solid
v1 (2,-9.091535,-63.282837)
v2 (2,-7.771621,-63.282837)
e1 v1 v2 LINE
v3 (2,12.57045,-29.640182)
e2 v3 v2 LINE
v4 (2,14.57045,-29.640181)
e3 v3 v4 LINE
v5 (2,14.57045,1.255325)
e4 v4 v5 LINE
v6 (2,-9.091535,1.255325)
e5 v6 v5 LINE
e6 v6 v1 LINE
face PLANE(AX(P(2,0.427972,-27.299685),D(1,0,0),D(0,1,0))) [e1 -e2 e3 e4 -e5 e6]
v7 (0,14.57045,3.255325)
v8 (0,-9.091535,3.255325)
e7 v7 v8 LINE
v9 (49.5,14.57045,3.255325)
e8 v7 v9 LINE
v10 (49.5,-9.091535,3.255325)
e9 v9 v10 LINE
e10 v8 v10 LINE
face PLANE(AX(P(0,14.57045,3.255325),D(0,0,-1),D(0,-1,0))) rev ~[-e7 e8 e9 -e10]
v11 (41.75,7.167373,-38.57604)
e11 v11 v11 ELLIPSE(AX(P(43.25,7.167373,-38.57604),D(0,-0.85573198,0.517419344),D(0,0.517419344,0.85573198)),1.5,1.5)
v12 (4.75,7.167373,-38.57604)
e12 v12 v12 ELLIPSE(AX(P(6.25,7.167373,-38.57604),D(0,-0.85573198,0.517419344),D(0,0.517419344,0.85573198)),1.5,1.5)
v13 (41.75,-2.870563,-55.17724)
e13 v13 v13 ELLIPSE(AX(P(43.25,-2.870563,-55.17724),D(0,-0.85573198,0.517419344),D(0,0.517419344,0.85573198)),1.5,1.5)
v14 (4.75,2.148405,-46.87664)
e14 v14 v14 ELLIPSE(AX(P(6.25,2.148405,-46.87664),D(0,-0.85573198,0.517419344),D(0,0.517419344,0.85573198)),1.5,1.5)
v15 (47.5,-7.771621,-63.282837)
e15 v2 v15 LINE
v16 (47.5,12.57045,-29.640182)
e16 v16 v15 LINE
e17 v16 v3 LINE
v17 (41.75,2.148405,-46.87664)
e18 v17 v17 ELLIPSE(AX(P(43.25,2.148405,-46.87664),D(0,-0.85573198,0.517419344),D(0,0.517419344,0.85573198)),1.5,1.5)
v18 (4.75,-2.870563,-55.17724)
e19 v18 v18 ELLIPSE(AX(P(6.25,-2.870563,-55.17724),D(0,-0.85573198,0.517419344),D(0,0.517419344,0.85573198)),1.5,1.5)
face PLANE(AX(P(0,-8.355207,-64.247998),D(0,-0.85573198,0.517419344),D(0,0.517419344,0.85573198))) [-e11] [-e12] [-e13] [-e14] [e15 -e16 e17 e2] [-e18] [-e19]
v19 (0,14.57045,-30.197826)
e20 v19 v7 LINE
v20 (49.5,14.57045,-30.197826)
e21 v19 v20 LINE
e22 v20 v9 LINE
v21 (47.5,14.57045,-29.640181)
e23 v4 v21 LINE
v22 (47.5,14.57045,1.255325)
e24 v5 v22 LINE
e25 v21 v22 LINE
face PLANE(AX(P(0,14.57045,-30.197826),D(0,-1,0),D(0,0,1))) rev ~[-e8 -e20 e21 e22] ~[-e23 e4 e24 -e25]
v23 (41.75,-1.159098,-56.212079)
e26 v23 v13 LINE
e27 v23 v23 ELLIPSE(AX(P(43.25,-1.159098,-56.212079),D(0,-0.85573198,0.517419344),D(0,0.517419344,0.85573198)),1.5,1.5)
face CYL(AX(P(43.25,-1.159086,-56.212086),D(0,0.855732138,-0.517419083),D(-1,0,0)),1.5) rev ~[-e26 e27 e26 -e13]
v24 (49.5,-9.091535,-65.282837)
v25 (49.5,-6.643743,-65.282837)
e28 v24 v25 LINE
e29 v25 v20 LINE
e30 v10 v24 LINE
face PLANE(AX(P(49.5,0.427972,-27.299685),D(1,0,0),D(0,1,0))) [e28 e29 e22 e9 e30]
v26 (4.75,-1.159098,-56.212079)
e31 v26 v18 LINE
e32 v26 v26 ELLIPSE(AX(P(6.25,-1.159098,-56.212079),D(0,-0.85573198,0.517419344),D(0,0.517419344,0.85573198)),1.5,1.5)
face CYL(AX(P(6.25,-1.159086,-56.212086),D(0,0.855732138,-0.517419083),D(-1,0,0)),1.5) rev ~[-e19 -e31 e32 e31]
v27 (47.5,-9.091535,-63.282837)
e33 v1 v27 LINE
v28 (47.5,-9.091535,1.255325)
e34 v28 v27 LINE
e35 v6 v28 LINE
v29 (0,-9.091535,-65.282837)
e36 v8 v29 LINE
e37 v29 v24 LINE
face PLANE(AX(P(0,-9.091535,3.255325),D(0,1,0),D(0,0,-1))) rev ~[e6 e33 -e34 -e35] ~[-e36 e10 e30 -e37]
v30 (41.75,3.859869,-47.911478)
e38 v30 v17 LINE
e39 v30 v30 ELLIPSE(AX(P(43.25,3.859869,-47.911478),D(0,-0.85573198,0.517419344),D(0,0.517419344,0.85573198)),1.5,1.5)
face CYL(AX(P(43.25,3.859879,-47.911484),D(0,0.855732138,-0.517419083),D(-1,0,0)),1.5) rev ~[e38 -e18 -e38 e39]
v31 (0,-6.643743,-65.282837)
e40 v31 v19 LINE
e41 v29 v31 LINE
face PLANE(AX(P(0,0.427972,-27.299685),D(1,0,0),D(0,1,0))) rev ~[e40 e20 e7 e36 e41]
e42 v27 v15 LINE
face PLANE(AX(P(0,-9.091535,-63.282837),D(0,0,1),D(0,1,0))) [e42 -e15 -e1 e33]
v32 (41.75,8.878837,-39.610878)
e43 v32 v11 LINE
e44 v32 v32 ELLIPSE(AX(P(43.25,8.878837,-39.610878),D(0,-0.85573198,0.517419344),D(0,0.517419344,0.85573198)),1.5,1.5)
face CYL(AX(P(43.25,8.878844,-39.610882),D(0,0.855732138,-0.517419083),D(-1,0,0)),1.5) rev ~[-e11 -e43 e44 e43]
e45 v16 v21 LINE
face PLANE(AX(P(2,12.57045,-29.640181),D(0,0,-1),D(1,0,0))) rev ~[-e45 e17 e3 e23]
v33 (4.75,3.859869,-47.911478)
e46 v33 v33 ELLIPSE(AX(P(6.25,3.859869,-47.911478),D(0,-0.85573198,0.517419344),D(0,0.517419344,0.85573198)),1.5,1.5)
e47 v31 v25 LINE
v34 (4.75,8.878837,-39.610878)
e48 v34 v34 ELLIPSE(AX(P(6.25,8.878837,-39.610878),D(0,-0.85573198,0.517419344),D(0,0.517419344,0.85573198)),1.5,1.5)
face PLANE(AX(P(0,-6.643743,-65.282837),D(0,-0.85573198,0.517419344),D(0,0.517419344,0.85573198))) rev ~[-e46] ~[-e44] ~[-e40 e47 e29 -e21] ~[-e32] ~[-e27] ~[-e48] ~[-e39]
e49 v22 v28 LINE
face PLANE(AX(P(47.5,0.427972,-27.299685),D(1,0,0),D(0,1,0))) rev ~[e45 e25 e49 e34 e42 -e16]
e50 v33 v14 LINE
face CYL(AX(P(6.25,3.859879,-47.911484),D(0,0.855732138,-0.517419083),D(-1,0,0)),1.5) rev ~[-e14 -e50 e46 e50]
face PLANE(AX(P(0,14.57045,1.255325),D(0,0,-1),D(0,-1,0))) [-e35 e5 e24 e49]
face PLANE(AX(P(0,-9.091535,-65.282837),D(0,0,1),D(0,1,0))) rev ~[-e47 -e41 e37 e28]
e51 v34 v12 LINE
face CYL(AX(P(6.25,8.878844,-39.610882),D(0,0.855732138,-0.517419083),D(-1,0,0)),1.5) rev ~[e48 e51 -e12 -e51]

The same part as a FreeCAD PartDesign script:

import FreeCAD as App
import Part
import Sketcher
Q = App.Units.Quantity


def faces_at(feature, points):
    """Names of the faces that lie closest to the given points."""
    faces = feature.Shape.Faces
    near = lambda p: min(range(len(faces)), key=lambda i: faces[i].distToShape(Part.Vertex(*p))[0])
    return sorted({f"Face{near(p) + 1}" for p in points})


def add_polygon(sketch, points):
    """Adds a closed chain of lines whose ends are joined by coincident constraints."""
    first, n = sketch.GeometryCount, len(points)
    for a, b in zip(points, points[1:] + points[:1]):
        sketch.addGeometry(Part.LineSegment(App.Vector(*a, 0), App.Vector(*b, 0)), False)
    for i in range(n):
        sketch.addConstraint(Sketcher.Constraint("Coincident", first + i, 2, first + (i + 1) % n, 1))

doc = App.newDocument("Part")
body = doc.addObject("PartDesign::Body", "Body")

# Sketch on YZ plane
sketch1 = body.newObject("Sketcher::SketchObject", "Sketch")
sketch1.AttachmentSupport = (doc.getObject("YZ_Plane"), [""])
sketch1.MapMode = "FlatFace"
add_polygon(sketch1, [(14.6, 3.3), (-9.1, 3.3), (-9.1, -65.3), (-6.6, -65.3), (14.6, -30.2)])  # lines 0-4
sketch1.addConstraint(Sketcher.Constraint("Horizontal", 0))
sketch1.addConstraint(Sketcher.Constraint("Vertical", 1))
sketch1.addConstraint(Sketcher.Constraint("Horizontal", 2))
sketch1.addConstraint(Sketcher.Constraint("Vertical", 4))
sketch1.addConstraint(Sketcher.Constraint("Distance", 3, Q("41 mm")))
sketch1.addConstraint(Sketcher.Constraint("DistanceY", 1, 2, 1, 1, Q("68.538162 mm")))
sketch1.addConstraint(Sketcher.Constraint("DistanceY", 4, 1, 4, 2, Q("33.453151 mm")))
sketch1.addConstraint(Sketcher.Constraint("DistanceX", 0, 2, 0, 1, Q("23.661985 mm")))
sketch1.addConstraint(Sketcher.Constraint("DistanceX", -1, 1, 3, 2, Q("14.57045 mm")))
sketch1.addConstraint(Sketcher.Constraint("DistanceY", -1, 1, 0, 2, Q("3.255325 mm")))
pad1 = body.newObject("PartDesign::Pad", "Pad")
pad1.Profile = sketch1
pad1.Length = 49.5
doc.recompute()

thickness = body.newObject("PartDesign::Thickness", "Thickness")
thickness.Base = (pad1, faces_at(pad1, [(24.75, -9.092, -31.014)]))
thickness.Value = 2
thickness.Reversed = True
thickness.Join = "Arc"

# Sketch on XZ plane
sketch2 = body.newObject("Sketcher::SketchObject", "Sketch001")
sketch2.AttachmentSupport = (doc.getObject("XZ_Plane"), [""])
sketch2.MapMode = "FlatFace"
sketch2.AttachmentOffset = App.Placement(App.Vector(0, 0, -12.57045), App.Rotation())
add_polygon(sketch2, [(2, 1), (2, -30), (48, -30), (48, 1)])  # lines 0-3
sketch2.addConstraint(Sketcher.Constraint("Vertical", 0))
sketch2.addConstraint(Sketcher.Constraint("Horizontal", 1))
sketch2.addConstraint(Sketcher.Constraint("Vertical", 2))
sketch2.addConstraint(Sketcher.Constraint("Horizontal", 3))
sketch2.addConstraint(Sketcher.Constraint("DistanceX", 1, 1, 1, 2, Q("45.5 mm")))
sketch2.addConstraint(Sketcher.Constraint("DistanceX", -1, 1, 0, 2, Q("2 mm")))
sketch2.addConstraint(Sketcher.Constraint("DistanceY", 0, 2, 0, 1, Q("30.895506 mm")))
sketch2.addConstraint(Sketcher.Constraint("DistanceY", 0, 2, -1, 1, Q("29.640181 mm")))
pocket1 = body.newObject("PartDesign::Pocket", "Pocket")
pocket1.Profile = sketch2
pocket1.Length = 25

# Sketch on an angled plane
sketch3 = body.newObject("Sketcher::SketchObject", "Sketch002")
sketch3.Placement = App.Placement(App.Vector(0, 24.040368, -14.536037), App.Rotation(App.Vector(-1, 0, 0), App.Vector(0, 0.517419083, 0.855732138), App.Vector(0, 0.855732138, -0.517419083), "ZXY"))
sketch3.addGeometry(Part.Circle(App.Vector(-43.2, -29.3, 0), App.Vector(0, 0, 1), 1.5), False)
sketch3.addGeometry(Part.Circle(App.Vector(-43.2, -39, 0), App.Vector(0, 0, 1), 1.5), False)
sketch3.addGeometry(Part.Circle(App.Vector(-43.2, -48.7, 0), App.Vector(0, 0, 1), 1.5), False)
sketch3.addGeometry(Part.Circle(App.Vector(-6.2, -29.3, 0), App.Vector(0, 0, 1), 1.5), False)
sketch3.addGeometry(Part.Circle(App.Vector(-6.2, -39, 0), App.Vector(0, 0, 1), 1.5), False)
sketch3.addGeometry(Part.Circle(App.Vector(-6.2, -48.7, 0), App.Vector(0, 0, 1), 1.5), False)
sketch3.addConstraint(Sketcher.Constraint("Equal", 0, 1))
sketch3.addConstraint(Sketcher.Constraint("Equal", 1, 2))
sketch3.addConstraint(Sketcher.Constraint("Equal", 2, 3))
sketch3.addConstraint(Sketcher.Constraint("Equal", 3, 4))
sketch3.addConstraint(Sketcher.Constraint("Equal", 4, 5))
sketch3.addConstraint(Sketcher.Constraint("Horizontal", 0, 3, 3, 3))
sketch3.addConstraint(Sketcher.Constraint("Horizontal", 1, 3, 4, 3))
sketch3.addConstraint(Sketcher.Constraint("Horizontal", 2, 3, 5, 3))
sketch3.addConstraint(Sketcher.Constraint("Vertical", 0, 3, 1, 3))
sketch3.addConstraint(Sketcher.Constraint("Vertical", 1, 3, 2, 3))
sketch3.addConstraint(Sketcher.Constraint("Vertical", 3, 3, 4, 3))
sketch3.addConstraint(Sketcher.Constraint("Vertical", 4, 3, 5, 3))
sketch3.addConstraint(Sketcher.Constraint("Diameter", 0, Q("3 mm")))
sketch3.addConstraint(Sketcher.Constraint("DistanceX", 0, 3, 3, 3, Q("37 mm")))
sketch3.addConstraint(Sketcher.Constraint("DistanceY", 1, 3, 0, 3, Q("9.7 mm")))
sketch3.addConstraint(Sketcher.Constraint("DistanceY", 2, 3, 1, 3, Q("9.7 mm")))
sketch3.addConstraint(Sketcher.Constraint("DistanceX", 0, 3, -1, 1, Q("43.25 mm")))
sketch3.addConstraint(Sketcher.Constraint("DistanceY", 0, 3, -1, 1, Q("29.302213 mm")))
pocket2 = body.newObject("PartDesign::Pocket", "Pocket001")
pocket2.Profile = sketch3
pocket2.Length = 25

doc.recompute()
